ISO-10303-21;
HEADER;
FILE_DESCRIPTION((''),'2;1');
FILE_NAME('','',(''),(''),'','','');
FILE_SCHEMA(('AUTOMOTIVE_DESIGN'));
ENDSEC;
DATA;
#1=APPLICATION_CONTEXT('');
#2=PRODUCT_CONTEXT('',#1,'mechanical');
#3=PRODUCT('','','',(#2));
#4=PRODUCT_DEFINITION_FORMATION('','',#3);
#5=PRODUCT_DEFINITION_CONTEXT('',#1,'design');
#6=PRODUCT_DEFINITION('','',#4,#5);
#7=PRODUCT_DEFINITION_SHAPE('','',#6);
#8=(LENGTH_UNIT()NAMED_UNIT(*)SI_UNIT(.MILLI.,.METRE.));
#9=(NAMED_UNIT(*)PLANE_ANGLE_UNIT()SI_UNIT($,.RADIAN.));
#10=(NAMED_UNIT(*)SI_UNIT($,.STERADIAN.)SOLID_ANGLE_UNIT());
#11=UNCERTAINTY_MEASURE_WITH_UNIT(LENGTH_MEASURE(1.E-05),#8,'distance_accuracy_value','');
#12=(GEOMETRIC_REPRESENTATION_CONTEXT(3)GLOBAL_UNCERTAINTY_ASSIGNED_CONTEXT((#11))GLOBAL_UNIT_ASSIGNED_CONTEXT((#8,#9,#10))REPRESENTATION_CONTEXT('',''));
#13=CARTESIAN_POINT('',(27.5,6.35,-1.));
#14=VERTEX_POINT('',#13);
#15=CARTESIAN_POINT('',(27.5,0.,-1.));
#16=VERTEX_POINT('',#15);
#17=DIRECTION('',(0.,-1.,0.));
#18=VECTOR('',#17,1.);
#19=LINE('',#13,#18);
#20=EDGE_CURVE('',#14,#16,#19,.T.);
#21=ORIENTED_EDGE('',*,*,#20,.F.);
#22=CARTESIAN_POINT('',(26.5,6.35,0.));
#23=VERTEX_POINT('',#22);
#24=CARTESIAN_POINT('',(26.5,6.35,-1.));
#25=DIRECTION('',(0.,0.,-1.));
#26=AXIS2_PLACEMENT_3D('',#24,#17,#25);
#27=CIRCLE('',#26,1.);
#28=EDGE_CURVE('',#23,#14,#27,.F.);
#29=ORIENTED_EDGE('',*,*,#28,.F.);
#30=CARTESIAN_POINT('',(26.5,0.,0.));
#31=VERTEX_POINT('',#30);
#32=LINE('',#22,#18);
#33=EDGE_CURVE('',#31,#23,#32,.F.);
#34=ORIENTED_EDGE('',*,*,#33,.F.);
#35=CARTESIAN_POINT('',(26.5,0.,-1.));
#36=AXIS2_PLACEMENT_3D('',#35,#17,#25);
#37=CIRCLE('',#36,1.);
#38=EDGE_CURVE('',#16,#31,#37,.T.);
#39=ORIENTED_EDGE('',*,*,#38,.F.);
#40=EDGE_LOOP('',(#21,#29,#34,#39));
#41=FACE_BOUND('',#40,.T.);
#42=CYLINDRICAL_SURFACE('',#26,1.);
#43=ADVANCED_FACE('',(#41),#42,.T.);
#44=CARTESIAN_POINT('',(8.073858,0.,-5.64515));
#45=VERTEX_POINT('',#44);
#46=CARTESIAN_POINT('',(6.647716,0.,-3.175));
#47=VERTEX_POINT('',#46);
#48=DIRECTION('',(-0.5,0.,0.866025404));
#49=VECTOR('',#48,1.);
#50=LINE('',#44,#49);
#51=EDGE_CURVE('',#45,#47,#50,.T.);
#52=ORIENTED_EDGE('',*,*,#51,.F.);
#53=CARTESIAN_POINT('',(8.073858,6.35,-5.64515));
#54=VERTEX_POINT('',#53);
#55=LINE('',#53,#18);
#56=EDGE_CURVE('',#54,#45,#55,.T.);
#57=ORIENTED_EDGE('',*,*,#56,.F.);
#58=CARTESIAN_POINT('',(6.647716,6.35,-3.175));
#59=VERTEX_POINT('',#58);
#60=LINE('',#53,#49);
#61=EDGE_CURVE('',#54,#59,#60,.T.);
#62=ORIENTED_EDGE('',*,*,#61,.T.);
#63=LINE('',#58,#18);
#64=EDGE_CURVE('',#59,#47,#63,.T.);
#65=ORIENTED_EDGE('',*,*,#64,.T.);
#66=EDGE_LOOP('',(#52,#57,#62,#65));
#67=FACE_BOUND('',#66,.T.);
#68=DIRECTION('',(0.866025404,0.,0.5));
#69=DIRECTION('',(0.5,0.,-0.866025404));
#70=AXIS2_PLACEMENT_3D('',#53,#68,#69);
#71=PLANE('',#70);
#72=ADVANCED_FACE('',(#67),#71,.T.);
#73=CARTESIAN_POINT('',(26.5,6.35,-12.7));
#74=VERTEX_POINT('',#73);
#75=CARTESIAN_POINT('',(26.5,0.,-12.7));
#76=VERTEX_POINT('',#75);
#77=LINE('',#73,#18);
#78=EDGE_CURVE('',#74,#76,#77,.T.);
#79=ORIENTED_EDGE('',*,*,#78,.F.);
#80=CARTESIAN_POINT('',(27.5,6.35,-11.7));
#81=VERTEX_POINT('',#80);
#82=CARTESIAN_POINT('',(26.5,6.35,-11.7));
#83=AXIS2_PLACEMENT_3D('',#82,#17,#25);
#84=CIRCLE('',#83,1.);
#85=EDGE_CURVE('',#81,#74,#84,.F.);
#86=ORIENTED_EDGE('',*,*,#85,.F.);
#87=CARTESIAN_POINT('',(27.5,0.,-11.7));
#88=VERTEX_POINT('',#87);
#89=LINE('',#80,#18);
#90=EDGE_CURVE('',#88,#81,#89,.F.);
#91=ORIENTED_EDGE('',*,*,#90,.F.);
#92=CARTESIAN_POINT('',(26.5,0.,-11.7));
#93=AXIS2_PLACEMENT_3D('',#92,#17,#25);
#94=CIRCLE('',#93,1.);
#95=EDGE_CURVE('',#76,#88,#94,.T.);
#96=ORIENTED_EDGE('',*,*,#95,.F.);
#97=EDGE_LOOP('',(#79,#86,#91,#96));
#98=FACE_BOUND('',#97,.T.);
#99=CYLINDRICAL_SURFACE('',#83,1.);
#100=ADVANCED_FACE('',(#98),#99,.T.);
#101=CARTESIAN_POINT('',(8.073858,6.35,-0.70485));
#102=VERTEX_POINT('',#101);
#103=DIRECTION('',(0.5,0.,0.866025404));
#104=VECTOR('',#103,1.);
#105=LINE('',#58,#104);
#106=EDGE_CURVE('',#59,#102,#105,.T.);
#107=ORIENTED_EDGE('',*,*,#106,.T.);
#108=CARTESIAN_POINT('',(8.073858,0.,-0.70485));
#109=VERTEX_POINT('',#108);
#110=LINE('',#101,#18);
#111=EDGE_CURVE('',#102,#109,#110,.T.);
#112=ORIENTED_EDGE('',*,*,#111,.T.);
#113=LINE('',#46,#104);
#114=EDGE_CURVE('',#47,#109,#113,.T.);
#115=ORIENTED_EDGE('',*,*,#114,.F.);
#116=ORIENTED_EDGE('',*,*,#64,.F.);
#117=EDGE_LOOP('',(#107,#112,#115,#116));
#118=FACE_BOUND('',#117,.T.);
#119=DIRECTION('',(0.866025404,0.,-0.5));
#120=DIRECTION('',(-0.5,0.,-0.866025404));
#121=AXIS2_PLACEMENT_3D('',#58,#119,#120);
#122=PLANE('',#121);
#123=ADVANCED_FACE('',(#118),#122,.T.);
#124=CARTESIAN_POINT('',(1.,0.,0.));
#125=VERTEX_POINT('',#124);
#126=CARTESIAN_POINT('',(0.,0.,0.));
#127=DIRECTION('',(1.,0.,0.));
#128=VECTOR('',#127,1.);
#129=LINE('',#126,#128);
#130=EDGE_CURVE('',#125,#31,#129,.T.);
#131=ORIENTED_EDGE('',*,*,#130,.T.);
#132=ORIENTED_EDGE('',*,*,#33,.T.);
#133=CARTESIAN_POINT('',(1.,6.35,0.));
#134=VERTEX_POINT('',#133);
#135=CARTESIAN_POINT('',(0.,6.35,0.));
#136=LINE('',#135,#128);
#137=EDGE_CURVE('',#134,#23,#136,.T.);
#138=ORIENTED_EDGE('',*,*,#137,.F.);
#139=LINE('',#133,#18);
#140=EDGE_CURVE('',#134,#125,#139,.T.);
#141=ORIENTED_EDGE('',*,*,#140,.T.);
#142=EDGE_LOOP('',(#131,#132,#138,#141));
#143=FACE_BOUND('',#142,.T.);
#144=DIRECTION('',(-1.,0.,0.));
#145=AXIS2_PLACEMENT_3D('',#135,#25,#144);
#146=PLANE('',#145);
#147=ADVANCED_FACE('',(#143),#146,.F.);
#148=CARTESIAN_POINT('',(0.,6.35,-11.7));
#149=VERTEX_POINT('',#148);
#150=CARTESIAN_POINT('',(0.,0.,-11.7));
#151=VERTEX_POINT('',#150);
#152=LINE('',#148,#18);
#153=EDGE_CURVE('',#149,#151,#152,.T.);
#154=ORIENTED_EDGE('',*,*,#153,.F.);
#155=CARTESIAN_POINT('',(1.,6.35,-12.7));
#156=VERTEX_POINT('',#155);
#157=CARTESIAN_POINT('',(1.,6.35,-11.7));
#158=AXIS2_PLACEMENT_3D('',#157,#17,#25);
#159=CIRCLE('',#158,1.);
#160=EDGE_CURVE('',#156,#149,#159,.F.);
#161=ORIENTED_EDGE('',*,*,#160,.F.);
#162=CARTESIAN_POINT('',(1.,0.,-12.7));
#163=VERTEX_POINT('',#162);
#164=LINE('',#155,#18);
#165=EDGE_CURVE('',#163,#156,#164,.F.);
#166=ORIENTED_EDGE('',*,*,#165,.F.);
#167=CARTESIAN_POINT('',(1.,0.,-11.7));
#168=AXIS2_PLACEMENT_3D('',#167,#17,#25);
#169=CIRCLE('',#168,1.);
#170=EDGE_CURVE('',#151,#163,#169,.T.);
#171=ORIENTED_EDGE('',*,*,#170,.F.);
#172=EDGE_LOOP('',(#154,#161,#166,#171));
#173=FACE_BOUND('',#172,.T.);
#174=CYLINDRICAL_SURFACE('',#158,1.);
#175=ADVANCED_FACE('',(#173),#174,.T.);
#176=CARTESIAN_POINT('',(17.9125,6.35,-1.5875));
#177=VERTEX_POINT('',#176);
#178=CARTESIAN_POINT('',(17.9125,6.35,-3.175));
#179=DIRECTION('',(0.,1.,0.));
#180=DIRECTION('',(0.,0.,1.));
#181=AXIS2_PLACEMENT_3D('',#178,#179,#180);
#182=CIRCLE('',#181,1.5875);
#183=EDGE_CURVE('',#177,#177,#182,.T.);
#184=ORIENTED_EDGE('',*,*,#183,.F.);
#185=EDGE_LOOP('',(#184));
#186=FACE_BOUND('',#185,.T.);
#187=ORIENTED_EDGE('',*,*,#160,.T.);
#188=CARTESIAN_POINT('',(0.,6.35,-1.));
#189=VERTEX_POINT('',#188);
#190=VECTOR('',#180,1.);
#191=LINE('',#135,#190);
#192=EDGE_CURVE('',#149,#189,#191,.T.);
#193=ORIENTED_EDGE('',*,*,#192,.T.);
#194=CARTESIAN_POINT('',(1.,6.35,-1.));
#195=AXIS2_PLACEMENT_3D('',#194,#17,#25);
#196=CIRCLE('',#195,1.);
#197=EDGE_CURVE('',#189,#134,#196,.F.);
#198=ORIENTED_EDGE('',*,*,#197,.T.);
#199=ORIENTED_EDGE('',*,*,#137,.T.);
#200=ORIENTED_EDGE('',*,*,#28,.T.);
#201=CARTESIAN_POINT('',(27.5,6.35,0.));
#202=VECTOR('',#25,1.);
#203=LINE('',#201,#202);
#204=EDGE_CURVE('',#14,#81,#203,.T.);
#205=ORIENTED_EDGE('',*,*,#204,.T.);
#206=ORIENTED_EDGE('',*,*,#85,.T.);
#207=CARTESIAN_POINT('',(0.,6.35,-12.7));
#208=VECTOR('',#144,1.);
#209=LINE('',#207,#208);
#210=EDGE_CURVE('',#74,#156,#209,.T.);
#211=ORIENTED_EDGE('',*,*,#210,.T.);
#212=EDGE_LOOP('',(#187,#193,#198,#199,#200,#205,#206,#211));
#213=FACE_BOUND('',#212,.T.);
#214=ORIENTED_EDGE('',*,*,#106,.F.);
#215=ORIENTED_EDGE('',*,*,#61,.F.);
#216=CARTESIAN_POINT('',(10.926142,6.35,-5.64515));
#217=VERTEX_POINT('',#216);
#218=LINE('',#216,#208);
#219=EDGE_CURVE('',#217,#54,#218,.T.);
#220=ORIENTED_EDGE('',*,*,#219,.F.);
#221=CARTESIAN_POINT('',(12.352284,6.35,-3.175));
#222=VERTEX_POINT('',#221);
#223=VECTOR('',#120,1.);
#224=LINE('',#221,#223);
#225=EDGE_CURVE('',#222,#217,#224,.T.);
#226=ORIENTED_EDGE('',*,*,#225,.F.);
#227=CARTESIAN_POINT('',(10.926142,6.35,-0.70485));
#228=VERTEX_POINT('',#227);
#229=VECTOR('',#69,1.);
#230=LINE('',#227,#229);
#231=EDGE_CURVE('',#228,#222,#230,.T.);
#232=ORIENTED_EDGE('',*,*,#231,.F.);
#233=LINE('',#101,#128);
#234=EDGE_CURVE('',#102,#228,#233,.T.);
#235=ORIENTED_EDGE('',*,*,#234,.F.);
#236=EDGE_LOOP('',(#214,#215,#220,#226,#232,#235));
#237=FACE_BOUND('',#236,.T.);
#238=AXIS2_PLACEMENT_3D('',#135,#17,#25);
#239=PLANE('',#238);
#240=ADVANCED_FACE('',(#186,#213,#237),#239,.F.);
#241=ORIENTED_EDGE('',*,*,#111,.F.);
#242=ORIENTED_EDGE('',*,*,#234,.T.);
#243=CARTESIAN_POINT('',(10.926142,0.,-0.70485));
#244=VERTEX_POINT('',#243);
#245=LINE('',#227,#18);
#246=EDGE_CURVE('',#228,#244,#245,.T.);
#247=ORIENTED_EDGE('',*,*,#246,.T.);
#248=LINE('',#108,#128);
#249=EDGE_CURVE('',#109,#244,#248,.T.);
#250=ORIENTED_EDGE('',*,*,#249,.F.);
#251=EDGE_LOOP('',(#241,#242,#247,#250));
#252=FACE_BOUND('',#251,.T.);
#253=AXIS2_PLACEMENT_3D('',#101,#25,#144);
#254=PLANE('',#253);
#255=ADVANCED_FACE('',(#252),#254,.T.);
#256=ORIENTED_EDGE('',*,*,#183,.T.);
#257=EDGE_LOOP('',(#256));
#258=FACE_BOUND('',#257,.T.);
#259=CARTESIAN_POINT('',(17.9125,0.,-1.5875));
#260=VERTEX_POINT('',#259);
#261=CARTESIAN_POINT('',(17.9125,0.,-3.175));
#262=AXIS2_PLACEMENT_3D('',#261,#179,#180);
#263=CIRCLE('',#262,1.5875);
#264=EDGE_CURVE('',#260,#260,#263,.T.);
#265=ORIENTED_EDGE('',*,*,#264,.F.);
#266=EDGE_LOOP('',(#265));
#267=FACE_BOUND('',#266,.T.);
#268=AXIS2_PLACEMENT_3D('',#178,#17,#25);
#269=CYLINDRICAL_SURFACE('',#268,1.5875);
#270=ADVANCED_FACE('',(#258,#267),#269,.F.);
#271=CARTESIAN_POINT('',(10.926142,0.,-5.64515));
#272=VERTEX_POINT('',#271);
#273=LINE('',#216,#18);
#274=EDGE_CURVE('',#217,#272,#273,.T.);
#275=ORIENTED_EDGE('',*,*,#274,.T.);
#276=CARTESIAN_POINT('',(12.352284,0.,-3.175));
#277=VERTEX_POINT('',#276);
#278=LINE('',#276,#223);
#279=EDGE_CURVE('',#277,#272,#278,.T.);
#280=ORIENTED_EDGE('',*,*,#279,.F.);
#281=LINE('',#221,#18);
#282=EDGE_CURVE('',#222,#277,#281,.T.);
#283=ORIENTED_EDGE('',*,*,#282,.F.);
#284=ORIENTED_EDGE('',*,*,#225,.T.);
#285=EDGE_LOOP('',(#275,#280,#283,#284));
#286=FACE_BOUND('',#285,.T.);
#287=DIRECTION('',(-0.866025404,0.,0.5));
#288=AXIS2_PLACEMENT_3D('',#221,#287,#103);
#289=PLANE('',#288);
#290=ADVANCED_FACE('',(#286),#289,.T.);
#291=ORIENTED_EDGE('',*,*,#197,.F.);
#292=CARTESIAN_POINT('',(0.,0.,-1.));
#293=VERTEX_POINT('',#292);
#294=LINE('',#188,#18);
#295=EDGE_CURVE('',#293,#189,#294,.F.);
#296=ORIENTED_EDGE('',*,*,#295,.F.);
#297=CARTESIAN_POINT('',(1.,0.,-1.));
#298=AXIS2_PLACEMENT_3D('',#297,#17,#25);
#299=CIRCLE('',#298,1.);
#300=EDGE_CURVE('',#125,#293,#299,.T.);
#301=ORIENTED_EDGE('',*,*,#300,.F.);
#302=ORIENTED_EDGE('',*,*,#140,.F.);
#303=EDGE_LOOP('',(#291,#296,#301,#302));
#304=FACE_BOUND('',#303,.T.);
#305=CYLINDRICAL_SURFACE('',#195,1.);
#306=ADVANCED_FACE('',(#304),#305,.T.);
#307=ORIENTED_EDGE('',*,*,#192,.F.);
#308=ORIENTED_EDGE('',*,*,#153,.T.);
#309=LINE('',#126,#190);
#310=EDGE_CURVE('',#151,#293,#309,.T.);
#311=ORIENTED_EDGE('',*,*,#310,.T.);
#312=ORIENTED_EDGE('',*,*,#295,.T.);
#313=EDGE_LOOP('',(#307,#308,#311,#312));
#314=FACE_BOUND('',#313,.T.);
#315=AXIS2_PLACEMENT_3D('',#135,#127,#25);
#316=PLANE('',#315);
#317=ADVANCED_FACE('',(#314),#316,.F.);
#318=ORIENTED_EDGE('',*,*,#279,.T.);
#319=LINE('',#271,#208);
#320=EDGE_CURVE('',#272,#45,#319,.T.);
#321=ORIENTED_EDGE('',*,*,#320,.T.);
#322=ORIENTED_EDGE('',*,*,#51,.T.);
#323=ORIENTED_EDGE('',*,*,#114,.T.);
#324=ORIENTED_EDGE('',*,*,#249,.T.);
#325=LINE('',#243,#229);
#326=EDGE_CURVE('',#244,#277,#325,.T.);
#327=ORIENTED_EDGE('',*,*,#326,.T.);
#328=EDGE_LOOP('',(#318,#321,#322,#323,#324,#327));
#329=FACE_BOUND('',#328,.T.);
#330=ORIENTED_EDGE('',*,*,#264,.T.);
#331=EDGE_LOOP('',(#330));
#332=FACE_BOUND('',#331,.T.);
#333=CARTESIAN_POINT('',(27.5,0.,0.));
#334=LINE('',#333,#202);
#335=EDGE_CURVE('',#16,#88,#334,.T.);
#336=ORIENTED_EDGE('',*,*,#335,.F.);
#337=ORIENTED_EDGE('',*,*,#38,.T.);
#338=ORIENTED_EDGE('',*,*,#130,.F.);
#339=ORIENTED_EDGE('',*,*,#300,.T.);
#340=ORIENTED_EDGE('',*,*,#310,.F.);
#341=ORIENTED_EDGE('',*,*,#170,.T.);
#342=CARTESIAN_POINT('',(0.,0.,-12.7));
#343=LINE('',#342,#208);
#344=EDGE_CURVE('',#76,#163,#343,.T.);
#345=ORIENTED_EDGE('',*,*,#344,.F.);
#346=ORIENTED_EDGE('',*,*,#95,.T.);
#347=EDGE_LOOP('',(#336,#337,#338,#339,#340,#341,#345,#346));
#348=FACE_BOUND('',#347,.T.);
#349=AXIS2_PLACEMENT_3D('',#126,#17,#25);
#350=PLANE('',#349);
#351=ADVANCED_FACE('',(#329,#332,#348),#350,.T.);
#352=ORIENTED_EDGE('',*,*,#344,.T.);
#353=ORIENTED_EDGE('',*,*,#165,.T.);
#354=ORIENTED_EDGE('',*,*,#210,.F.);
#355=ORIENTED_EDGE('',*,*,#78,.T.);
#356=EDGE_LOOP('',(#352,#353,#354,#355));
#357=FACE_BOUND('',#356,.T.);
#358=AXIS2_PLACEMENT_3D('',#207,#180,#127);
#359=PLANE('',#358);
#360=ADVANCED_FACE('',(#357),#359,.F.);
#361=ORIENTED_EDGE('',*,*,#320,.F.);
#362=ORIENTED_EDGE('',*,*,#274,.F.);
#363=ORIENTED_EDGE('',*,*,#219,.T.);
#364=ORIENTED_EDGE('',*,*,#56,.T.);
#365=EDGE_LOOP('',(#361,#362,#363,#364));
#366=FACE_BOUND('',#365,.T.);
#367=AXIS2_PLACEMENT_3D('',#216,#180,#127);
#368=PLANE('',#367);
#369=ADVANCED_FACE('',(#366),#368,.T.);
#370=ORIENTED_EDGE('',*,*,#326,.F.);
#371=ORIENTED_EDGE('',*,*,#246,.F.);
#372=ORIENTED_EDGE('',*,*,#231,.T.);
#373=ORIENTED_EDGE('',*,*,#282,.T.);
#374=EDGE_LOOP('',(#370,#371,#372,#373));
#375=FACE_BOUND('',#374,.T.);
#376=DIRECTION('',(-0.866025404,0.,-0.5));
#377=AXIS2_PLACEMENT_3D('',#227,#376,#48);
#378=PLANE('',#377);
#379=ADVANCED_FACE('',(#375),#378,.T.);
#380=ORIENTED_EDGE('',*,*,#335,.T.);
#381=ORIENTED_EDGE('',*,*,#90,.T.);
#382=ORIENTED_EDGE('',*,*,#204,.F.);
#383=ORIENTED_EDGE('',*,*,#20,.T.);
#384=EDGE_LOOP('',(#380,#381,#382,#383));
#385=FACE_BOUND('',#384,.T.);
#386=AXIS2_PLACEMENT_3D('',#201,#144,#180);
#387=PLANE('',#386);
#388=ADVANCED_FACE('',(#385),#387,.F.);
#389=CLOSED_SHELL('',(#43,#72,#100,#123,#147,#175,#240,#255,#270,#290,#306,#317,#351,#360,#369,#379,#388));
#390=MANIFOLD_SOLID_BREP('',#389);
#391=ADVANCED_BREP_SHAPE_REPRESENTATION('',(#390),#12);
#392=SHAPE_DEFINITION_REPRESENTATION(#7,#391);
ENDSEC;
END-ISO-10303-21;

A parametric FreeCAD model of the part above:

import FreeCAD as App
import Part
import Sketcher

V = App.Vector
Q = App.Units.Quantity


def edges_at(feature, points):
    """Names of the edges that pass closest to the given points."""
    edges = feature.Shape.Edges
    near = lambda p: min(range(len(edges)), key=lambda i: edges[i].distToShape(Part.Vertex(*p))[0])
    return sorted({f"Edge{near(p) + 1}" for p in points})

doc = App.newDocument("Part")
body = doc.addObject("PartDesign::Body", "Body")

# Sketch on XZ plane
sketch1 = doc.addObject("Sketcher::SketchObject", "Sketch")
body.addObject(sketch1)
sketch1.AttachmentSupport = (doc.XZ_Plane, [""])
sketch1.MapMode = "FlatFace"
sketch1.addGeometry(Part.LineSegment(V(0, -12.7, 0), V(0, 0, 0)), False)
sketch1.addGeometry(Part.LineSegment(V(0, 0, 0), V(27.5, 0, 0)), False)
sketch1.addGeometry(Part.LineSegment(V(27.5, 0, 0), V(27.5, -12.7, 0)), False)
sketch1.addGeometry(Part.LineSegment(V(27.5, -12.7, 0), V(0, -12.7, 0)), False)
sketch1.addGeometry(Part.Circle(V(17.9, -3.2, 0), V(0, 0, 1), 1.6), False)
sketch1.addGeometry(Part.LineSegment(V(10.9, -5.6, 0), V(12.4, -3.2, 0)), False)
sketch1.addGeometry(Part.LineSegment(V(12.4, -3.2, 0), V(10.9, -0.7, 0)), False)
sketch1.addGeometry(Part.LineSegment(V(10.9, -0.7, 0), V(8.1, -0.7, 0)), False)
sketch1.addGeometry(Part.LineSegment(V(8.1, -0.7, 0), V(6.6, -3.2, 0)), False)
sketch1.addGeometry(Part.LineSegment(V(6.6, -3.2, 0), V(8.1, -5.6, 0)), False)
sketch1.addGeometry(Part.LineSegment(V(8.1, -5.6, 0), V(10.9, -5.6, 0)), False)
sketch1.addConstraint(Sketcher.Constraint("Coincident", 0, 2, 1, 1))
sketch1.addConstraint(Sketcher.Constraint("Coincident", 1, 2, 2, 1))
sketch1.addConstraint(Sketcher.Constraint("Coincident", 2, 2, 3, 1))
sketch1.addConstraint(Sketcher.Constraint("Coincident", 3, 2, 0, 1))
sketch1.addConstraint(Sketcher.Constraint("Coincident", 5, 2, 6, 1))
sketch1.addConstraint(Sketcher.Constraint("Coincident", 6, 2, 7, 1))
sketch1.addConstraint(Sketcher.Constraint("Coincident", 7, 2, 8, 1))
sketch1.addConstraint(Sketcher.Constraint("Coincident", 8, 2, 9, 1))
sketch1.addConstraint(Sketcher.Constraint("Coincident", 9, 2, 10, 1))
sketch1.addConstraint(Sketcher.Constraint("Coincident", 10, 2, 5, 1))
sketch1.addConstraint(Sketcher.Constraint("Vertical", 0))
sketch1.addConstraint(Sketcher.Constraint("Horizontal", 1))
sketch1.addConstraint(Sketcher.Constraint("Vertical", 2))
sketch1.addConstraint(Sketcher.Constraint("Horizontal", 3))
sketch1.addConstraint(Sketcher.Constraint("Horizontal", 7))
sketch1.addConstraint(Sketcher.Constraint("Horizontal", 10))
sketch1.addConstraint(Sketcher.Constraint("Coincident", 0, 2, -1, 1))
sketch1.addConstraint(Sketcher.Constraint("Parallel", 5, 8))
sketch1.addConstraint(Sketcher.Constraint("Parallel", 6, 9))
sketch1.addConstraint(Sketcher.Constraint("Horizontal", 4, 3, 5, 2))
sketch1.addConstraint(Sketcher.Constraint("Horizontal", 5, 2, 8, 2))
sketch1.addConstraint(Sketcher.Constraint("Vertical", 7, 2, 9, 2))
sketch1.addConstraint(Sketcher.Constraint("Vertical", 6, 2, 10, 2))
sketch1.addConstraint(Sketcher.Constraint("Diameter", 4, Q("0.125 in")))
sketch1.addConstraint(Sketcher.Constraint("DistanceY", 0, 1, 0, 2, Q("0.5 in")))
sketch1.addConstraint(Sketcher.Constraint("Angle", 5, Q("60 deg")))
sketch1.addConstraint(Sketcher.Constraint("DistanceY", 4, 3, -1, 1, Q("0.125 in")))
sketch1.addConstraint(Sketcher.Constraint("DistanceX", 1, 1, 1, 2, Q("27.5 mm")))
sketch1.addConstraint(Sketcher.Constraint("DistanceY", 9, 2, 7, 2, Q("0.1945 in")))
sketch1.addConstraint(Sketcher.Constraint("DistanceX", -1, 1, 4, 3, Q("17.9125 mm")))
sketch1.addConstraint(Sketcher.Constraint("DistanceX", 7, 2, 7, 1, Q("2.852284 mm")))
sketch1.addConstraint(Sketcher.Constraint("DistanceX", -1, 1, 6, 2, Q("10.926142 mm")))
pad1 = doc.addObject("PartDesign::Pad", "Pad")
body.addObject(pad1)
pad1.Profile = sketch1
pad1.Length = Q("0.25 in")
pad1.Reversed = True
doc.recompute()

fillet = doc.addObject("PartDesign::Fillet", "Fillet")
body.addObject(fillet)
fillet.Base = (pad1, edges_at(pad1, [
    (0, 3.175, -12.7),
    (27.5, 3.175, -12.7),
    (27.5, 3.175, 0),
    (0, 3.175, 0),
]))
fillet.Radius = 1

doc.recompute()
